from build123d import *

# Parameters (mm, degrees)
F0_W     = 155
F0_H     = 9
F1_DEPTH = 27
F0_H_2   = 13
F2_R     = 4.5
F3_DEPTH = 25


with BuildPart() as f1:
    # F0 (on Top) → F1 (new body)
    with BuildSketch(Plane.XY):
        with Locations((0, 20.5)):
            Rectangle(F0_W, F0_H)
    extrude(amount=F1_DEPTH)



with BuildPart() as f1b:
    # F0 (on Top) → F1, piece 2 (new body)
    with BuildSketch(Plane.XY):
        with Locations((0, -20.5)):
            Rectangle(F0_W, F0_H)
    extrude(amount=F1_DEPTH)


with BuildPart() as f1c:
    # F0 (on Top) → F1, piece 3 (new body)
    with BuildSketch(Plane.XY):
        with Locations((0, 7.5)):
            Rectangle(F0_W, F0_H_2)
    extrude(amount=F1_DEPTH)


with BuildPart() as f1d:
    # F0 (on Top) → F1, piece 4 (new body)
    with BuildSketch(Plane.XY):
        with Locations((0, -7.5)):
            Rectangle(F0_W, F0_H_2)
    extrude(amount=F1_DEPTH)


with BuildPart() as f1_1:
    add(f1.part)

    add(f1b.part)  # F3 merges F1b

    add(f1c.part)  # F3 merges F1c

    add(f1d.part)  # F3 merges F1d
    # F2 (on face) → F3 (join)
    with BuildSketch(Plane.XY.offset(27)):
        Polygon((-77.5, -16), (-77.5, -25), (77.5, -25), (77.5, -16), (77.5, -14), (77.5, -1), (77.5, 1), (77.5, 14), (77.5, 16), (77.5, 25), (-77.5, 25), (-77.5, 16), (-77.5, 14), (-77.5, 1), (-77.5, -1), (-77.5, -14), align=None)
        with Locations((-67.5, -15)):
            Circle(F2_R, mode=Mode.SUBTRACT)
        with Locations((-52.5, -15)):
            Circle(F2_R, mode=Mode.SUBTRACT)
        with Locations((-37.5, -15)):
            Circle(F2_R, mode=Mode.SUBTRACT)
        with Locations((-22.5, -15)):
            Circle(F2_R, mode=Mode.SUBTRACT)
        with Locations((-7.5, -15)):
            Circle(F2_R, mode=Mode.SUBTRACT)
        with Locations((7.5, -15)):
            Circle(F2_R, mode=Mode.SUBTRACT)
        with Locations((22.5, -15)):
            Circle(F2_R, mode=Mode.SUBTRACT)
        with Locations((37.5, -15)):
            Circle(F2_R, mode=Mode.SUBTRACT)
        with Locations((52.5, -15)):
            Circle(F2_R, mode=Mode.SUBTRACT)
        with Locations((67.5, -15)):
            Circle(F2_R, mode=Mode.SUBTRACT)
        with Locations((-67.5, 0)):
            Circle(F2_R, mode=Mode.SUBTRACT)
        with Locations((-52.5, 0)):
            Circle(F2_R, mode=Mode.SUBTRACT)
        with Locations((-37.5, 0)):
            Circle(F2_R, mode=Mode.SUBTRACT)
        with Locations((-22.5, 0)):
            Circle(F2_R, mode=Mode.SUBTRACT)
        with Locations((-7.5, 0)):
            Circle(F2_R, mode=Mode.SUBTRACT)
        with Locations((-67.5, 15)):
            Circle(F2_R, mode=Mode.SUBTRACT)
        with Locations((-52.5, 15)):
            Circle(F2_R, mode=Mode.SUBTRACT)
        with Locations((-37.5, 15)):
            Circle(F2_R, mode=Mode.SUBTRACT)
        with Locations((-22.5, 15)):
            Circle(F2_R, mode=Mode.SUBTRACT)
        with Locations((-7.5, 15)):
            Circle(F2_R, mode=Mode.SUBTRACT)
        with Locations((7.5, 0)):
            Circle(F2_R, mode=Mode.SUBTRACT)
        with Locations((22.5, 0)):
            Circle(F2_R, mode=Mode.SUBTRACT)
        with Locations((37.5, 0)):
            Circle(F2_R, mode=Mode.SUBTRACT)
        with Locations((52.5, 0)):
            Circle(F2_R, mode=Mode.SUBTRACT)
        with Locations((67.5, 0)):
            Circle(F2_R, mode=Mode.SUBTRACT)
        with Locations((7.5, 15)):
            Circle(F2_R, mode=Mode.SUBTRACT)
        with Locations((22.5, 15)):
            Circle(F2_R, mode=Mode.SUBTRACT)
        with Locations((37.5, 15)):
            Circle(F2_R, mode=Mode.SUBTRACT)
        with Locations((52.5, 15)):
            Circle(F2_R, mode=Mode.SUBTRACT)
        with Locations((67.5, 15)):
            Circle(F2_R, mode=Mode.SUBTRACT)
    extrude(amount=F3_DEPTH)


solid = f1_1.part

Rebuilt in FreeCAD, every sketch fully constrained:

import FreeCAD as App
import Part
import Sketcher
from FreeCAD import Vector


def add_polygon(sketch, points):
    """Adds a closed chain of lines whose ends are joined by coincident constraints."""
    first, n = sketch.GeometryCount, len(points)
    for a, b in zip(points, points[1:] + points[:1]):
        sketch.addGeometry(Part.LineSegment(App.Vector(*a, 0), App.Vector(*b, 0)), False)
    for i in range(n):
        sketch.addConstraint(Sketcher.Constraint("Coincident", first + i, 2, first + (i + 1) % n, 1))

doc = App.newDocument("Part")
body = doc.addObject("PartDesign::Body", "Body")

# Sketch on XY plane
sketch1 = doc.addObject("Sketcher::SketchObject", "Sketch")
body.addObject(sketch1)
sketch1.AttachmentSupport = (doc.XY_Plane, [""])
sketch1.MapMode = "FlatFace"
add_polygon(sketch1, [(-78, 25), (-78, 16), (78, 16), (78, 25)])  # lines 0-3
sketch1.addConstraint(Sketcher.Constraint("Vertical", 0))
sketch1.addConstraint(Sketcher.Constraint("Horizontal", 1))
sketch1.addConstraint(Sketcher.Constraint("Vertical", 2))
sketch1.addConstraint(Sketcher.Constraint("Horizontal", 3))
sketch1.addConstraint(Sketcher.Constraint("DistanceX", 1, 1, 1, 2, 155.0))
sketch1.addConstraint(Sketcher.Constraint("DistanceY", 0, 2, 0, 1, 9.0))
sketch1.addConstraint(Sketcher.Constraint("DistanceY", -1, 1, 0, 2, 16.0))
sketch1.addConstraint(Sketcher.Constraint("DistanceX", 0, 2, -1, 1, 77.5))
pad1 = doc.addObject("PartDesign::Pad", "Pad")
body.addObject(pad1)
pad1.Profile = sketch1
pad1.Length = 27
body2 = doc.addObject("PartDesign::Body", "Body001")

# Sketch on XY plane
sketch2 = doc.addObject("Sketcher::SketchObject", "Sketch001")
body2.addObject(sketch2)
sketch2.AttachmentSupport = (doc.getObject("XY_Plane001"), [""])
sketch2.MapMode = "FlatFace"
add_polygon(sketch2, [(-78, -16), (-78, -25), (78, -25), (78, -16)])  # lines 0-3
sketch2.addConstraint(Sketcher.Constraint("Vertical", 0))
sketch2.addConstraint(Sketcher.Constraint("Horizontal", 1))
sketch2.addConstraint(Sketcher.Constraint("Vertical", 2))
sketch2.addConstraint(Sketcher.Constraint("Horizontal", 3))
sketch2.addConstraint(Sketcher.Constraint("DistanceX", 1, 1, 1, 2, 155.0))
sketch2.addConstraint(Sketcher.Constraint("DistanceY", 0, 2, 0, 1, 9.0))
sketch2.addConstraint(Sketcher.Constraint("DistanceY", 0, 2, -1, 1, 25.0))
sketch2.addConstraint(Sketcher.Constraint("DistanceX", 0, 2, -1, 1, 77.5))
pad2 = doc.addObject("PartDesign::Pad", "Pad001")
body2.addObject(pad2)
pad2.Profile = sketch2
pad2.Length = 27
body3 = doc.addObject("PartDesign::Body", "Body002")

# Sketch on XY plane
sketch3 = doc.addObject("Sketcher::SketchObject", "Sketch002")
body3.addObject(sketch3)
sketch3.AttachmentSupport = (doc.getObject("XY_Plane002"), [""])
sketch3.MapMode = "FlatFace"
add_polygon(sketch3, [(-78, 14), (-78, 1), (78, 1), (78, 14)])  # lines 0-3
sketch3.addConstraint(Sketcher.Constraint("Vertical", 0))
sketch3.addConstraint(Sketcher.Constraint("Horizontal", 1))
sketch3.addConstraint(Sketcher.Constraint("Vertical", 2))
sketch3.addConstraint(Sketcher.Constraint("Horizontal", 3))
sketch3.addConstraint(Sketcher.Constraint("DistanceX", 1, 1, 1, 2, 155.0))
sketch3.addConstraint(Sketcher.Constraint("DistanceY", 0, 2, 0, 1, 13.0))
sketch3.addConstraint(Sketcher.Constraint("DistanceY", -1, 1, 0, 2, 1.0))
sketch3.addConstraint(Sketcher.Constraint("DistanceX", 0, 2, -1, 1, 77.5))
pad3 = doc.addObject("PartDesign::Pad", "Pad002")
body3.addObject(pad3)
pad3.Profile = sketch3
pad3.Length = 27
body4 = doc.addObject("PartDesign::Body", "Body003")

# Sketch on XY plane
sketch4 = doc.addObject("Sketcher::SketchObject", "Sketch003")
body4.addObject(sketch4)
sketch4.AttachmentSupport = (doc.getObject("XY_Plane003"), [""])
sketch4.MapMode = "FlatFace"
add_polygon(sketch4, [(-78, -1), (-78, -14), (78, -14), (78, -1)])  # lines 0-3
sketch4.addConstraint(Sketcher.Constraint("Vertical", 0))
sketch4.addConstraint(Sketcher.Constraint("Horizontal", 1))
sketch4.addConstraint(Sketcher.Constraint("Vertical", 2))
sketch4.addConstraint(Sketcher.Constraint("Horizontal", 3))
sketch4.addConstraint(Sketcher.Constraint("DistanceX", 1, 1, 1, 2, 155.0))
sketch4.addConstraint(Sketcher.Constraint("DistanceY", 0, 2, 0, 1, 13.0))
sketch4.addConstraint(Sketcher.Constraint("DistanceY", 0, 2, -1, 1, 14.0))
sketch4.addConstraint(Sketcher.Constraint("DistanceX", 0, 2, -1, 1, 77.5))
pad4 = doc.addObject("PartDesign::Pad", "Pad003")
body4.addObject(pad4)
pad4.Profile = sketch4
pad4.Length = 27
body.AllowCompound = True
doc.recompute()

boolean = doc.addObject("PartDesign::Boolean", "Boolean")
body.addObject(boolean)
boolean.Type = "Fuse"
boolean.addObjects([body2])
doc.recompute()

boolean2 = doc.addObject("PartDesign::Boolean", "Boolean001")
body.addObject(boolean2)
boolean2.Type = "Fuse"
boolean2.addObjects([body3])
doc.recompute()

boolean3 = doc.addObject("PartDesign::Boolean", "Boolean002")
body.addObject(boolean3)
boolean3.Type = "Fuse"
boolean3.addObjects([body4])

# Sketch on XY plane
sketch5 = doc.addObject("Sketcher::SketchObject", "Sketch004")
body.addObject(sketch5)
sketch5.AttachmentSupport = (doc.XY_Plane, [""])
sketch5.MapMode = "FlatFace"
sketch5.AttachmentOffset = App.Placement(Vector(0, 0, 27), App.Rotation())
add_polygon(sketch5, [(-77.5, -25), (77.5, -25), (77.5, 25), (-77.5, 25)])  # lines 0-3
sketch5.addGeometry(Part.Circle(Vector(-67.5, -15, 0), Vector(0, 0, 1), 4.5), False)  # 4
sketch5.addGeometry(Part.Circle(Vector(-52.5, -15, 0), Vector(0, 0, 1), 4.5), False)  # 5
sketch5.addGeometry(Part.Circle(Vector(-37.5, -15, 0), Vector(0, 0, 1), 4.5), False)  # 6
sketch5.addGeometry(Part.Circle(Vector(-22.5, -15, 0), Vector(0, 0, 1), 4.5), False)  # 7
sketch5.addGeometry(Part.Circle(Vector(-7.5, -15, 0), Vector(0, 0, 1), 4.5), False)  # 8
sketch5.addGeometry(Part.Circle(Vector(7.5, -15, 0), Vector(0, 0, 1), 4.5), False)  # 9
sketch5.addGeometry(Part.Circle(Vector(22.5, -15, 0), Vector(0, 0, 1), 4.5), False)  # 10
sketch5.addGeometry(Part.Circle(Vector(37.5, -15, 0), Vector(0, 0, 1), 4.5), False)  # 11
sketch5.addGeometry(Part.Circle(Vector(52.5, -15, 0), Vector(0, 0, 1), 4.5), False)  # 12
sketch5.addGeometry(Part.Circle(Vector(67.5, -15, 0), Vector(0, 0, 1), 4.5), False)  # 13
sketch5.addGeometry(Part.Circle(Vector(-67.5, 0, 0), Vector(0, 0, 1), 4.5), False)  # 14
sketch5.addGeometry(Part.Circle(Vector(-52.5, 0, 0), Vector(0, 0, 1), 4.5), False)  # 15
sketch5.addGeometry(Part.Circle(Vector(-37.5, 0, 0), Vector(0, 0, 1), 4.5), False)  # 16
sketch5.addGeometry(Part.Circle(Vector(-22.5, 0, 0), Vector(0, 0, 1), 4.5), False)  # 17
sketch5.addGeometry(Part.Circle(Vector(-7.5, 0, 0), Vector(0, 0, 1), 4.5), False)  # 18
sketch5.addGeometry(Part.Circle(Vector(-67.5, 15, 0), Vector(0, 0, 1), 4.5), False)  # 19
sketch5.addGeometry(Part.Circle(Vector(-52.5, 15, 0), Vector(0, 0, 1), 4.5), False)  # 20
sketch5.addGeometry(Part.Circle(Vector(-37.5, 15, 0), Vector(0, 0, 1), 4.5), False)  # 21
sketch5.addGeometry(Part.Circle(Vector(-22.5, 15, 0), Vector(0, 0, 1), 4.5), False)  # 22
sketch5.addGeometry(Part.Circle(Vector(-7.5, 15, 0), Vector(0, 0, 1), 4.5), False)  # 23
sketch5.addGeometry(Part.Circle(Vector(7.5, 0, 0), Vector(0, 0, 1), 4.5), False)  # 24
sketch5.addGeometry(Part.Circle(Vector(22.5, 0, 0), Vector(0, 0, 1), 4.5), False)  # 25
sketch5.addGeometry(Part.Circle(Vector(37.5, 0, 0), Vector(0, 0, 1), 4.5), False)  # 26
sketch5.addGeometry(Part.Circle(Vector(52.5, 0, 0), Vector(0, 0, 1), 4.5), False)  # 27
sketch5.addGeometry(Part.Circle(Vector(67.5, 0, 0), Vector(0, 0, 1), 4.5), False)  # 28
sketch5.addGeometry(Part.Circle(Vector(7.5, 15, 0), Vector(0, 0, 1), 4.5), False)  # 29
sketch5.addGeometry(Part.Circle(Vector(22.5, 15, 0), Vector(0, 0, 1), 4.5), False)  # 30
sketch5.addGeometry(Part.Circle(Vector(37.5, 15, 0), Vector(0, 0, 1), 4.5), False)  # 31
sketch5.addGeometry(Part.Circle(Vector(52.5, 15, 0), Vector(0, 0, 1), 4.5), False)  # 32
sketch5.addGeometry(Part.Circle(Vector(67.5, 15, 0), Vector(0, 0, 1), 4.5), False)  # 33
sketch5.addConstraint(Sketcher.Constraint("Horizontal", 0))
sketch5.addConstraint(Sketcher.Constraint("Vertical", 1))
sketch5.addConstraint(Sketcher.Constraint("Horizontal", 2))
sketch5.addConstraint(Sketcher.Constraint("Vertical", 3))
sketch5.addConstraint(Sketcher.Constraint("Equal", 4, 5))
sketch5.addConstraint(Sketcher.Constraint("Equal", 5, 6))
sketch5.addConstraint(Sketcher.Constraint("Equal", 6, 7))
sketch5.addConstraint(Sketcher.Constraint("Equal", 7, 8))
sketch5.addConstraint(Sketcher.Constraint("Equal", 8, 9))
sketch5.addConstraint(Sketcher.Constraint("Equal", 9, 10))
sketch5.addConstraint(Sketcher.Constraint("Equal", 10, 11))
sketch5.addConstraint(Sketcher.Constraint("Equal", 11, 12))
sketch5.addConstraint(Sketcher.Constraint("Equal", 12, 13))
sketch5.addConstraint(Sketcher.Constraint("Equal", 13, 14))
sketch5.addConstraint(Sketcher.Constraint("Equal", 14, 15))
sketch5.addConstraint(Sketcher.Constraint("Equal", 15, 16))
sketch5.addConstraint(Sketcher.Constraint("Equal", 16, 17))
sketch5.addConstraint(Sketcher.Constraint("Equal", 17, 18))
sketch5.addConstraint(Sketcher.Constraint("Equal", 18, 19))
sketch5.addConstraint(Sketcher.Constraint("Equal", 19, 20))
sketch5.addConstraint(Sketcher.Constraint("Equal", 20, 21))
sketch5.addConstraint(Sketcher.Constraint("Equal", 21, 22))
sketch5.addConstraint(Sketcher.Constraint("Equal", 22, 23))
sketch5.addConstraint(Sketcher.Constraint("Equal", 23, 24))
sketch5.addConstraint(Sketcher.Constraint("Equal", 24, 25))
sketch5.addConstraint(Sketcher.Constraint("Equal", 25, 26))
sketch5.addConstraint(Sketcher.Constraint("Equal", 26, 27))
sketch5.addConstraint(Sketcher.Constraint("Equal", 27, 28))
sketch5.addConstraint(Sketcher.Constraint("Equal", 28, 29))
sketch5.addConstraint(Sketcher.Constraint("Equal", 29, 30))
sketch5.addConstraint(Sketcher.Constraint("Equal", 30, 31))
sketch5.addConstraint(Sketcher.Constraint("Equal", 31, 32))
sketch5.addConstraint(Sketcher.Constraint("Equal", 32, 33))
sketch5.addConstraint(Sketcher.Constraint("Symmetric", 13, 3, 19, 3, -1, 1))
sketch5.addConstraint(Sketcher.Constraint("Symmetric", 12, 3, 20, 3, -1, 1))
sketch5.addConstraint(Sketcher.Constraint("Symmetric", 11, 3, 21, 3, -1, 1))
sketch5.addConstraint(Sketcher.Constraint("Symmetric", 10, 3, 22, 3, -1, 1))
sketch5.addConstraint(Sketcher.Constraint("Symmetric", 9, 3, 23, 3, -1, 1))
sketch5.addConstraint(Sketcher.Constraint("Symmetric", 18, 3, 24, 3, -1, 1))
sketch5.addConstraint(Sketcher.Constraint("Symmetric", 17, 3, 25, 3, -1, 1))
sketch5.addConstraint(Sketcher.Constraint("Symmetric", 16, 3, 26, 3, -1, 1))
sketch5.addConstraint(Sketcher.Constraint("Symmetric", 15, 3, 27, 3, -1, 1))
sketch5.addConstraint(Sketcher.Constraint("Symmetric", 14, 3, 28, 3, -1, 1))
sketch5.addConstraint(Sketcher.Constraint("Symmetric", 8, 3, 29, 3, -1, 1))
sketch5.addConstraint(Sketcher.Constraint("Symmetric", 7, 3, 30, 3, -1, 1))
sketch5.addConstraint(Sketcher.Constraint("Symmetric", 6, 3, 31, 3, -1, 1))
sketch5.addConstraint(Sketcher.Constraint("Symmetric", 5, 3, 32, 3, -1, 1))
sketch5.addConstraint(Sketcher.Constraint("Symmetric", 4, 3, 33, 3, -1, 1))
sketch5.addConstraint(Sketcher.Constraint("Symmetric", 0, 2, 2, 2, -1, 1))
sketch5.addConstraint(Sketcher.Constraint("Symmetric", 8, 3, 9, 3, -2))
sketch5.addConstraint(Sketcher.Constraint("Symmetric", 7, 3, 10, 3, -2))
sketch5.addConstraint(Sketcher.Constraint("Symmetric", 6, 3, 11, 3, -2))
sketch5.addConstraint(Sketcher.Constraint("Symmetric", 5, 3, 12, 3, -2))
sketch5.addConstraint(Sketcher.Constraint("Symmetric", 4, 3, 13, 3, -2))
sketch5.addConstraint(Sketcher.Constraint("PointOnObject", 14, 3, -1))
sketch5.addConstraint(Sketcher.Constraint("PointOnObject", 15, 3, -1))
sketch5.addConstraint(Sketcher.Constraint("PointOnObject", 16, 3, -1))
sketch5.addConstraint(Sketcher.Constraint("PointOnObject", 17, 3, -1))
sketch5.addConstraint(Sketcher.Constraint("PointOnObject", 18, 3, -1))
sketch5.addConstraint(Sketcher.Constraint("Horizontal", 4, 3, 5, 3))
sketch5.addConstraint(Sketcher.Constraint("Horizontal", 5, 3, 6, 3))
sketch5.addConstraint(Sketcher.Constraint("Horizontal", 6, 3, 7, 3))
sketch5.addConstraint(Sketcher.Constraint("Horizontal", 7, 3, 8, 3))
sketch5.addConstraint(Sketcher.Constraint("Vertical", 4, 3, 14, 3))
sketch5.addConstraint(Sketcher.Constraint("Vertical", 5, 3, 15, 3))
sketch5.addConstraint(Sketcher.Constraint("Vertical", 6, 3, 16, 3))
sketch5.addConstraint(Sketcher.Constraint("Vertical", 7, 3, 17, 3))
sketch5.addConstraint(Sketcher.Constraint("Vertical", 8, 3, 18, 3))
sketch5.addConstraint(Sketcher.Constraint("Diameter", 4, 9.0))
sketch5.addConstraint(Sketcher.Constraint("DistanceX", 0, 1, 0, 2, 155.0))
sketch5.addConstraint(Sketcher.Constraint("DistanceY", 1, 1, 1, 2, 50.0))
sketch5.addConstraint(Sketcher.Constraint("DistanceY", 4, 3, -1, 1, 15.0))
sketch5.addConstraint(Sketcher.Constraint("DistanceX", 4, 3, 5, 3, 15.0))
sketch5.addConstraint(Sketcher.Constraint("DistanceX", 5, 3, 6, 3, 15.0))
sketch5.addConstraint(Sketcher.Constraint("DistanceX", 6, 3, 7, 3, 15.0))
sketch5.addConstraint(Sketcher.Constraint("DistanceX", 7, 3, 8, 3, 15.0))
sketch5.addConstraint(Sketcher.Constraint("DistanceX", 8, 3, 9, 3, 15.0))
pad5 = doc.addObject("PartDesign::Pad", "Pad004")
body.addObject(pad5)
pad5.Profile = sketch5
pad5.Length = 25

doc.recompute()
